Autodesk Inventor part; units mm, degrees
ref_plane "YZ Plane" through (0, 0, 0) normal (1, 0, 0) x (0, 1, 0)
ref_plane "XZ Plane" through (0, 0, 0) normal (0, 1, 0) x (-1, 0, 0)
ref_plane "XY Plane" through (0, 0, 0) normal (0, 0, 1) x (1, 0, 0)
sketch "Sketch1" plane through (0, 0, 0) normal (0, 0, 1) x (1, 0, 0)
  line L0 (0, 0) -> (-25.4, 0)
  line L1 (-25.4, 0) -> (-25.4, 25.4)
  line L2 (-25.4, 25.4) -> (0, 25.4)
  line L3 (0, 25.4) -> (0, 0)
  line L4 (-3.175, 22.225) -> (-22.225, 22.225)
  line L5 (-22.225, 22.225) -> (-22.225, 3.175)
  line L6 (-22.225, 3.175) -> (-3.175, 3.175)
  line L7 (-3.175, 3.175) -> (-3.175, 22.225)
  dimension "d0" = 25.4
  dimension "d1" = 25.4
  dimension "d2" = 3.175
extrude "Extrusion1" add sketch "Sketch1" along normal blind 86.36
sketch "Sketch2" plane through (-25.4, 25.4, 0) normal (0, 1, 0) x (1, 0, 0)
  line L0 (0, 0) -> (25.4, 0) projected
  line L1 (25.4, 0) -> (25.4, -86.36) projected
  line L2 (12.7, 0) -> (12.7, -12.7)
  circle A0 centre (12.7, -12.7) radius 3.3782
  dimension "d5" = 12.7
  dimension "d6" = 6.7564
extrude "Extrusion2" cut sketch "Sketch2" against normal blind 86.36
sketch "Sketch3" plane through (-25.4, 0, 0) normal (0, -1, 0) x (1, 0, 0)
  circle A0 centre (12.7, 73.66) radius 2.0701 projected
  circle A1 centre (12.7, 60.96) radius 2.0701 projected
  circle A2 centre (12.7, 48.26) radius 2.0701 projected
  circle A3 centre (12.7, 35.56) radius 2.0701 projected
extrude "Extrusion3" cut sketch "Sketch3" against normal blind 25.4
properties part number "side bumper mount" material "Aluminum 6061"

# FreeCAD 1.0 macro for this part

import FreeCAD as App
import Part
import Sketcher

V = App.Vector
Q = App.Units.Quantity

doc = App.newDocument("Part")
body = doc.addObject("PartDesign::Body", "Body")

sketch1 = body.newObject("Sketcher::SketchObject", "Sketch")
sketch1.AttachmentSupport = (doc.getObject("XY_Plane"), [""])
sketch1.MapMode = "FlatFace"
sketch1.addGeometry(Part.LineSegment(V(-25, 0, 0), V(0, 0, 0)), False)
sketch1.addGeometry(Part.LineSegment(V(0, 0, 0), V(0, 25, 0)), False)
sketch1.addGeometry(Part.LineSegment(V(0, 25, 0), V(-25, 25, 0)), False)
sketch1.addGeometry(Part.LineSegment(V(-25, 25, 0), V(-25, 0, 0)), False)
sketch1.addGeometry(Part.LineSegment(V(-22, 22, 0), V(-3, 22, 0)), False)
sketch1.addGeometry(Part.LineSegment(V(-3, 22, 0), V(-3, 3, 0)), False)
sketch1.addGeometry(Part.LineSegment(V(-3, 3, 0), V(-22, 3, 0)), False)
sketch1.addGeometry(Part.LineSegment(V(-22, 3, 0), V(-22, 22, 0)), False)
sketch1.addConstraint(Sketcher.Constraint("Coincident", 0, 2, 1, 1))
sketch1.addConstraint(Sketcher.Constraint("Coincident", 1, 2, 2, 1))
sketch1.addConstraint(Sketcher.Constraint("Coincident", 2, 2, 3, 1))
sketch1.addConstraint(Sketcher.Constraint("Coincident", 3, 2, 0, 1))
sketch1.addConstraint(Sketcher.Constraint("Coincident", 4, 2, 5, 1))
sketch1.addConstraint(Sketcher.Constraint("Coincident", 5, 2, 6, 1))
sketch1.addConstraint(Sketcher.Constraint("Coincident", 6, 2, 7, 1))
sketch1.addConstraint(Sketcher.Constraint("Coincident", 7, 2, 4, 1))
sketch1.addConstraint(Sketcher.Constraint("Horizontal", 0))
sketch1.addConstraint(Sketcher.Constraint("Vertical", 1))
sketch1.addConstraint(Sketcher.Constraint("Horizontal", 2))
sketch1.addConstraint(Sketcher.Constraint("Vertical", 3))
sketch1.addConstraint(Sketcher.Constraint("Horizontal", 4))
sketch1.addConstraint(Sketcher.Constraint("Vertical", 5))
sketch1.addConstraint(Sketcher.Constraint("Horizontal", 6))
sketch1.addConstraint(Sketcher.Constraint("Vertical", 7))
sketch1.addConstraint(Sketcher.Constraint("Coincident", 0, 2, -1, 1))
sketch1.addConstraint(Sketcher.Constraint("Equal", 2, 1))
sketch1.addConstraint(Sketcher.Constraint("Equal", 6, 5))
sketch1.addConstraint(Sketcher.Constraint("DistanceX", 0, 1, 0, 2, Q("1 in")))
sketch1.addConstraint(Sketcher.Constraint("DistanceX", 4, 2, -1, 1, Q("0.125 in")))
sketch1.addConstraint(Sketcher.Constraint("DistanceY", -1, 1, 5, 2, Q("0.125 in")))
sketch1.addConstraint(Sketcher.Constraint("DistanceY", 4, 2, 1, 2, Q("0.125 in")))
pad1 = body.newObject("PartDesign::Pad", "Pad")
pad1.Profile = sketch1
pad1.Length = Q("3.4 in")

sketch2 = body.newObject("Sketcher::SketchObject", "Sketch001")
sketch2.AttachmentSupport = (doc.getObject("XZ_Plane"), [""])
sketch2.MapMode = "FlatFace"
sketch2.AttachmentOffset = App.Placement(V(0, 0, -1 * 25.4), App.Rotation())
sketch2.addGeometry(Part.Circle(V(-12.7, 12.7, 0), V(0, 0, 1), 3.4), False)
sketch2.addConstraint(Sketcher.Constraint("Diameter", 0, Q("0.266 in")))
sketch2.addConstraint(Sketcher.Constraint("DistanceX", 0, 3, -1, 1, Q("0.5 in")))
sketch2.addConstraint(Sketcher.Constraint("DistanceY", -1, 1, 0, 3, Q("0.5 in")))
pocket1 = body.newObject("PartDesign::Pocket", "Pocket")
pocket1.Profile = sketch2
pocket1.Length = Q("3.4 in")
pocket1.Reversed = True

sketch3 = body.newObject("Sketcher::SketchObject", "Sketch002")
sketch3.AttachmentSupport = (doc.getObject("XZ_Plane"), [""])
sketch3.MapMode = "FlatFace"
sketch3.addGeometry(Part.Circle(V(-12.7, 73.7, 0), V(0, 0, 1), 2.1), False)
sketch3.addGeometry(Part.Circle(V(-12.7, 61, 0), V(0, 0, 1), 2.1), False)
sketch3.addGeometry(Part.Circle(V(-12.7, 48.3, 0), V(0, 0, 1), 2.1), False)
sketch3.addGeometry(Part.Circle(V(-12.7, 35.6, 0), V(0, 0, 1), 2.1), False)
sketch3.addConstraint(Sketcher.Constraint("Equal", 0, 1))
sketch3.addConstraint(Sketcher.Constraint("Equal", 1, 2))
sketch3.addConstraint(Sketcher.Constraint("Equal", 2, 3))
sketch3.addConstraint(Sketcher.Constraint("Vertical", 0, 3, 1, 3))
sketch3.addConstraint(Sketcher.Constraint("Vertical", 1, 3, 2, 3))
sketch3.addConstraint(Sketcher.Constraint("Vertical", 2, 3, 3, 3))
sketch3.addConstraint(Sketcher.Constraint("Diameter", 0, Q("0.163 in")))
sketch3.addConstraint(Sketcher.Constraint("DistanceY", 2, 3, 0, 3, Q("1 in")))
sketch3.addConstraint(Sketcher.Constraint("DistanceY", 3, 3, 1, 3, Q("1 in")))
sketch3.addConstraint(Sketcher.Constraint("DistanceX", 0, 3, -1, 1, Q("0.5 in")))
sketch3.addConstraint(Sketcher.Constraint("DistanceY", -1, 1, 0, 3, Q("2.9 in")))
sketch3.addConstraint(Sketcher.Constraint("DistanceY", -1, 1, 1, 3, Q("2.4 in")))
pocket2 = body.newObject("PartDesign::Pocket", "Pocket001")
pocket2.Profile = sketch3
pocket2.Length = Q("1 in")

doc.recompute()
